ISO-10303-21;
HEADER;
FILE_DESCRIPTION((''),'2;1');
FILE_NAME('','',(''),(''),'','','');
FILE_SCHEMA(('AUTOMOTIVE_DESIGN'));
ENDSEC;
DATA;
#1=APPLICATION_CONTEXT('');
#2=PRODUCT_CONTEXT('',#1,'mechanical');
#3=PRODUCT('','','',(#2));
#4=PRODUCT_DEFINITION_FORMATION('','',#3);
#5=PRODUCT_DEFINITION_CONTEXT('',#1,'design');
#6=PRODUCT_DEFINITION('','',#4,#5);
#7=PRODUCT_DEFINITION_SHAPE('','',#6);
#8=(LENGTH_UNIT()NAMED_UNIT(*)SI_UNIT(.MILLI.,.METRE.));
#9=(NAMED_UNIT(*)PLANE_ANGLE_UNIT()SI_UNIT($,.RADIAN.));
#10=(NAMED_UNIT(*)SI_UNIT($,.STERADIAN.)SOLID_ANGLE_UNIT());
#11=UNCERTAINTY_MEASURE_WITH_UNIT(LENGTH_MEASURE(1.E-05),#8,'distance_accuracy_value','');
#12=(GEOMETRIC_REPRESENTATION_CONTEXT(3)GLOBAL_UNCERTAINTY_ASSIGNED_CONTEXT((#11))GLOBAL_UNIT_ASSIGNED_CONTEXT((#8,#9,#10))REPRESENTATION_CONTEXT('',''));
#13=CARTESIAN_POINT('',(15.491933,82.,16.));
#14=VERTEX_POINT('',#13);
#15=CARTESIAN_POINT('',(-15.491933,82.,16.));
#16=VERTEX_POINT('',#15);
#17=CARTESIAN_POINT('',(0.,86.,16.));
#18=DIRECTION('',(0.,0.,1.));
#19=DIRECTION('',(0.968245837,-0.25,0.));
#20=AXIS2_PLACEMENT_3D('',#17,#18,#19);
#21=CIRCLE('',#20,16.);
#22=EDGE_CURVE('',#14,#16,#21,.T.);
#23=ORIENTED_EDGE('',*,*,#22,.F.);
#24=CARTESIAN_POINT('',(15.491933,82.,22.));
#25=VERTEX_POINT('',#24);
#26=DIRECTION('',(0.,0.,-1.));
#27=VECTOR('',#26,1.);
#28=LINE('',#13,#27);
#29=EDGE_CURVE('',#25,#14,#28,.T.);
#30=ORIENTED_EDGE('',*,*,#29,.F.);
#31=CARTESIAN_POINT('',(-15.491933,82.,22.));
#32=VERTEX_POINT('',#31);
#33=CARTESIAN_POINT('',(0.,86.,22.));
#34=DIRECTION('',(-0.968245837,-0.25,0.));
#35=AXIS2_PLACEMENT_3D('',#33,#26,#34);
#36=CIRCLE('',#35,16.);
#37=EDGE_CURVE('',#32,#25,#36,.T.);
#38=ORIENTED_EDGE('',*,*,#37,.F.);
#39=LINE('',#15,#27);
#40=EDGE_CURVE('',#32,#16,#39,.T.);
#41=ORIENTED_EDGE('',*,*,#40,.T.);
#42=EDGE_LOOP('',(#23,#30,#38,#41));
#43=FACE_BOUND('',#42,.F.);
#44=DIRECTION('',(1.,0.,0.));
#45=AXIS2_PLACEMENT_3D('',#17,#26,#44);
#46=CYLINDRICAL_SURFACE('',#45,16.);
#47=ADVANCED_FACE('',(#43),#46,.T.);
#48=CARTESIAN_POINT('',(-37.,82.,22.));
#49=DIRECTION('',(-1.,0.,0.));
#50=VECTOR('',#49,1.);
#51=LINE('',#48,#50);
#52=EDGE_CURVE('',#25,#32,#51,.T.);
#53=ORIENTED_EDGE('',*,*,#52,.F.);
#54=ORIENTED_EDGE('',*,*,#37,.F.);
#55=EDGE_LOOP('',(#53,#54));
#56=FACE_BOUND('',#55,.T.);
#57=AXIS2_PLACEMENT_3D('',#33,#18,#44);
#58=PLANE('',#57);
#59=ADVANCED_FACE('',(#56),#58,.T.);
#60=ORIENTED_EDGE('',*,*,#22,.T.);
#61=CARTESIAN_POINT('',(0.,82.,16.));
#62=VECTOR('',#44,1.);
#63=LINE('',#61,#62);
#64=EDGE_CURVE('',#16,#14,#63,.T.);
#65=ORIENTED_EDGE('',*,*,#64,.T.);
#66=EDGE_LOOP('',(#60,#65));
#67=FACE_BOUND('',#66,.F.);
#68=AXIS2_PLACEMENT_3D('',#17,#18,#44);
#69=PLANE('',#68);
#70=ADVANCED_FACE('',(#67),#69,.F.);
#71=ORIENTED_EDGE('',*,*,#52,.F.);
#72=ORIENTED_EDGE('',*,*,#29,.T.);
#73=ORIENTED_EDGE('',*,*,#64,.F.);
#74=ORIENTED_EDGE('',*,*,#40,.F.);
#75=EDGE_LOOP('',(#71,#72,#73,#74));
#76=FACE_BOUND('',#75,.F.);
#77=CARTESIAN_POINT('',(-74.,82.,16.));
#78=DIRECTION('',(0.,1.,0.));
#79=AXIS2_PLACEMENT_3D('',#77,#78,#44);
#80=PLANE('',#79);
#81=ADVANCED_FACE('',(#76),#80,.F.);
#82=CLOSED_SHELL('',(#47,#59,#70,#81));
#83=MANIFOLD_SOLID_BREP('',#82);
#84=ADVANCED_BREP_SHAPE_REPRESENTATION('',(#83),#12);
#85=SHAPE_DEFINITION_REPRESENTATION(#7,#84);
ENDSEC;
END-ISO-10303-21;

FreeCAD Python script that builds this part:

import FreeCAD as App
import Part
import Sketcher
from FreeCAD import Vector


def add_polygon(sketch, points):
    """Adds a closed chain of lines whose ends are joined by coincident constraints."""
    first, n = sketch.GeometryCount, len(points)
    for a, b in zip(points, points[1:] + points[:1]):
        sketch.addGeometry(Part.LineSegment(App.Vector(*a, 0), App.Vector(*b, 0)), False)
    for i in range(n):
        sketch.addConstraint(Sketcher.Constraint("Coincident", first + i, 2, first + (i + 1) % n, 1))

doc = App.newDocument("Part")
body = doc.addObject("PartDesign::Body", "Body")

# Sketch on XY plane
sketch1 = body.newObject("Sketcher::SketchObject", "Sketch")
sketch1.AttachmentSupport = (doc.getObject("XY_Plane"), [""])
sketch1.MapMode = "FlatFace"
sketch1.AttachmentOffset = App.Placement(Vector(0, 0, 16), App.Rotation())
add_polygon(sketch1, [(-74, 82), (-74, 42), (74, 42), (74, 82)])  # lines 0-3
sketch1.addConstraint([
    Sketcher.Constraint("Vertical", 0),
    Sketcher.Constraint("Horizontal", 1),
    Sketcher.Constraint("Vertical", 2),
    Sketcher.Constraint("Horizontal", 3),
    Sketcher.Constraint("DistanceX", 1, 1, 1, 2, 148.0),
    Sketcher.Constraint("DistanceY", 0, 2, 0, 1, 40.0),
    Sketcher.Constraint("DistanceX", 0, 2, -1, 1, 74.0),
    Sketcher.Constraint("DistanceY", -1, 1, 0, 2, 42.0),
])
pad1 = body.newObject("PartDesign::Pad", "Pad")
pad1.Profile = sketch1
pad1.Length = 40
body2 = doc.addObject("PartDesign::Body", "Body001")

# Sketch on XY plane
sketch2 = body2.newObject("Sketcher::SketchObject", "Sketch001")
sketch2.AttachmentSupport = (doc.getObject("XY_Plane001"), [""])
sketch2.MapMode = "FlatFace"
sketch2.AttachmentOffset = App.Placement(Vector(0, 0, 16), App.Rotation())
sketch2.addGeometry(Part.Circle(Vector(0, 86, 0), Vector(0, 0, 1), 16), False)
sketch2.addConstraint([
    Sketcher.Constraint("PointOnObject", 0, 3, -2),
    Sketcher.Constraint("Diameter", 0, 32.0),
    Sketcher.Constraint("DistanceY", -1, 1, 0, 3, 86.0),
])
pad2 = body2.newObject("PartDesign::Pad", "Pad001")
pad2.Profile = sketch2
pad2.Length = 6
doc.recompute()

boolean = body2.newObject("PartDesign::Boolean", "Boolean")
boolean.Type = "Cut"
boolean.addObjects([body])

doc.recompute()
